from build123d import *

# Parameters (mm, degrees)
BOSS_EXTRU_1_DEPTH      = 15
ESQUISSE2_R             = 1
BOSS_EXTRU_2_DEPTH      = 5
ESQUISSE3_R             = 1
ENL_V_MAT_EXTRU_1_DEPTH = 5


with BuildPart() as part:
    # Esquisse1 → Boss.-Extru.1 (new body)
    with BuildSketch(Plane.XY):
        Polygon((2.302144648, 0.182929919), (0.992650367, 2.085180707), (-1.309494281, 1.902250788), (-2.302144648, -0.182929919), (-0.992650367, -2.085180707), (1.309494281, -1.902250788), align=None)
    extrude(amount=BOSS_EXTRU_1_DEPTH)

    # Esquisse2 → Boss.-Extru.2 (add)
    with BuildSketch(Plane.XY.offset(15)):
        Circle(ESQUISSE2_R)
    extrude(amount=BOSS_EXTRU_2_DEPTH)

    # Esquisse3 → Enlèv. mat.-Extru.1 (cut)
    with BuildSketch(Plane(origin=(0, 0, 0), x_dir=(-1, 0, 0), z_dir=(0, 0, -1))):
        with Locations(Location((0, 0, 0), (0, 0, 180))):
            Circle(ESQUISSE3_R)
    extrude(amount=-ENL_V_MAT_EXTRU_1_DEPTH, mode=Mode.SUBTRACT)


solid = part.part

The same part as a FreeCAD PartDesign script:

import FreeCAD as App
import Part
import Sketcher

V = App.Vector
Q = App.Units.Quantity

doc = App.newDocument("Part")
body = doc.addObject("PartDesign::Body", "Body")

# Sketch on XY plane
sketch1 = body.newObject("Sketcher::SketchObject", "Sketch")
sketch1.AttachmentSupport = (doc.getObject("XY_Plane"), [""])
sketch1.MapMode = "FlatFace"
sketch1.addGeometry([
    Part.LineSegment(V(2.3, 0.2, 0), V(1, 2.1, 0)),  # 0
    Part.LineSegment(V(1, 2.1, 0), V(-1.3, 1.9, 0)),  # 1
    Part.LineSegment(V(-1.3, 1.9, 0), V(-2.3, -0.2, 0)),  # 2
    Part.LineSegment(V(-2.3, -0.2, 0), V(-1, -2.1, 0)),  # 3
    Part.LineSegment(V(-1, -2.1, 0), V(1.3, -1.9, 0)),  # 4
    Part.LineSegment(V(1.3, -1.9, 0), V(2.3, 0.2, 0)),  # 5
], False)
sketch1.addConstraint([
    Sketcher.Constraint("Coincident", 0, 2, 1, 1),
    Sketcher.Constraint("Coincident", 1, 2, 2, 1),
    Sketcher.Constraint("Coincident", 2, 2, 3, 1),
    Sketcher.Constraint("Coincident", 3, 2, 4, 1),
    Sketcher.Constraint("Coincident", 4, 2, 5, 1),
    Sketcher.Constraint("Coincident", 5, 2, 0, 1),
    Sketcher.Constraint("Symmetric", 0, 2, 3, 2, -1, 1),
    Sketcher.Constraint("Symmetric", 1, 2, 4, 2, -1, 1),
    Sketcher.Constraint("Symmetric", 2, 2, 5, 2, -1, 1),
    Sketcher.Constraint("Equal", 0, 1),
    Sketcher.Constraint("Equal", 1, 2),
    Sketcher.Constraint("Distance", 0, Q("2.309401 mm")),
    Sketcher.Constraint("DistanceX", 3, 2, 0, 2, Q("1.985301 mm")),
    Sketcher.Constraint("DistanceY", 4, 2, 1, 2, Q("3.804502 mm")),
    Sketcher.Constraint("DistanceY", -1, 1, 0, 2, Q("2.085181 mm")),
])
pad1 = body.newObject("PartDesign::Pad", "Pad")
pad1.Profile = sketch1
pad1.Length = 15

# Sketch on XY plane
sketch2 = body.newObject("Sketcher::SketchObject", "Sketch001")
sketch2.AttachmentSupport = (doc.getObject("XY_Plane"), [""])
sketch2.MapMode = "FlatFace"
sketch2.AttachmentOffset = App.Placement(V(0, 0, 15), App.Rotation())
sketch2.addGeometry(Part.Circle(V(0, 0, 0), V(0, 0, 1), 1), False)
sketch2.addConstraint([
    Sketcher.Constraint("Coincident", 0, 3, -1, 1),
    Sketcher.Constraint("Diameter", 0, Q("2 mm")),
])
pad2 = body.newObject("PartDesign::Pad", "Pad001")
pad2.Profile = sketch2
pad2.Length = 5

# Sketch on XY plane
sketch3 = body.newObject("Sketcher::SketchObject", "Sketch002")
sketch3.AttachmentSupport = (doc.getObject("XY_Plane"), [""])
sketch3.MapMode = "FlatFace"
sketch3.addGeometry(Part.Circle(V(0, 0, 0), V(0, 0, 1), 1), False)
sketch3.addConstraint([
    Sketcher.Constraint("Coincident", 0, 3, -1, 1),
    Sketcher.Constraint("Diameter", 0, Q("2 mm")),
])
pocket1 = body.newObject("PartDesign::Pocket", "Pocket")
pocket1.Profile = sketch3
pocket1.Length = 5
pocket1.Reversed = True

doc.recompute()
